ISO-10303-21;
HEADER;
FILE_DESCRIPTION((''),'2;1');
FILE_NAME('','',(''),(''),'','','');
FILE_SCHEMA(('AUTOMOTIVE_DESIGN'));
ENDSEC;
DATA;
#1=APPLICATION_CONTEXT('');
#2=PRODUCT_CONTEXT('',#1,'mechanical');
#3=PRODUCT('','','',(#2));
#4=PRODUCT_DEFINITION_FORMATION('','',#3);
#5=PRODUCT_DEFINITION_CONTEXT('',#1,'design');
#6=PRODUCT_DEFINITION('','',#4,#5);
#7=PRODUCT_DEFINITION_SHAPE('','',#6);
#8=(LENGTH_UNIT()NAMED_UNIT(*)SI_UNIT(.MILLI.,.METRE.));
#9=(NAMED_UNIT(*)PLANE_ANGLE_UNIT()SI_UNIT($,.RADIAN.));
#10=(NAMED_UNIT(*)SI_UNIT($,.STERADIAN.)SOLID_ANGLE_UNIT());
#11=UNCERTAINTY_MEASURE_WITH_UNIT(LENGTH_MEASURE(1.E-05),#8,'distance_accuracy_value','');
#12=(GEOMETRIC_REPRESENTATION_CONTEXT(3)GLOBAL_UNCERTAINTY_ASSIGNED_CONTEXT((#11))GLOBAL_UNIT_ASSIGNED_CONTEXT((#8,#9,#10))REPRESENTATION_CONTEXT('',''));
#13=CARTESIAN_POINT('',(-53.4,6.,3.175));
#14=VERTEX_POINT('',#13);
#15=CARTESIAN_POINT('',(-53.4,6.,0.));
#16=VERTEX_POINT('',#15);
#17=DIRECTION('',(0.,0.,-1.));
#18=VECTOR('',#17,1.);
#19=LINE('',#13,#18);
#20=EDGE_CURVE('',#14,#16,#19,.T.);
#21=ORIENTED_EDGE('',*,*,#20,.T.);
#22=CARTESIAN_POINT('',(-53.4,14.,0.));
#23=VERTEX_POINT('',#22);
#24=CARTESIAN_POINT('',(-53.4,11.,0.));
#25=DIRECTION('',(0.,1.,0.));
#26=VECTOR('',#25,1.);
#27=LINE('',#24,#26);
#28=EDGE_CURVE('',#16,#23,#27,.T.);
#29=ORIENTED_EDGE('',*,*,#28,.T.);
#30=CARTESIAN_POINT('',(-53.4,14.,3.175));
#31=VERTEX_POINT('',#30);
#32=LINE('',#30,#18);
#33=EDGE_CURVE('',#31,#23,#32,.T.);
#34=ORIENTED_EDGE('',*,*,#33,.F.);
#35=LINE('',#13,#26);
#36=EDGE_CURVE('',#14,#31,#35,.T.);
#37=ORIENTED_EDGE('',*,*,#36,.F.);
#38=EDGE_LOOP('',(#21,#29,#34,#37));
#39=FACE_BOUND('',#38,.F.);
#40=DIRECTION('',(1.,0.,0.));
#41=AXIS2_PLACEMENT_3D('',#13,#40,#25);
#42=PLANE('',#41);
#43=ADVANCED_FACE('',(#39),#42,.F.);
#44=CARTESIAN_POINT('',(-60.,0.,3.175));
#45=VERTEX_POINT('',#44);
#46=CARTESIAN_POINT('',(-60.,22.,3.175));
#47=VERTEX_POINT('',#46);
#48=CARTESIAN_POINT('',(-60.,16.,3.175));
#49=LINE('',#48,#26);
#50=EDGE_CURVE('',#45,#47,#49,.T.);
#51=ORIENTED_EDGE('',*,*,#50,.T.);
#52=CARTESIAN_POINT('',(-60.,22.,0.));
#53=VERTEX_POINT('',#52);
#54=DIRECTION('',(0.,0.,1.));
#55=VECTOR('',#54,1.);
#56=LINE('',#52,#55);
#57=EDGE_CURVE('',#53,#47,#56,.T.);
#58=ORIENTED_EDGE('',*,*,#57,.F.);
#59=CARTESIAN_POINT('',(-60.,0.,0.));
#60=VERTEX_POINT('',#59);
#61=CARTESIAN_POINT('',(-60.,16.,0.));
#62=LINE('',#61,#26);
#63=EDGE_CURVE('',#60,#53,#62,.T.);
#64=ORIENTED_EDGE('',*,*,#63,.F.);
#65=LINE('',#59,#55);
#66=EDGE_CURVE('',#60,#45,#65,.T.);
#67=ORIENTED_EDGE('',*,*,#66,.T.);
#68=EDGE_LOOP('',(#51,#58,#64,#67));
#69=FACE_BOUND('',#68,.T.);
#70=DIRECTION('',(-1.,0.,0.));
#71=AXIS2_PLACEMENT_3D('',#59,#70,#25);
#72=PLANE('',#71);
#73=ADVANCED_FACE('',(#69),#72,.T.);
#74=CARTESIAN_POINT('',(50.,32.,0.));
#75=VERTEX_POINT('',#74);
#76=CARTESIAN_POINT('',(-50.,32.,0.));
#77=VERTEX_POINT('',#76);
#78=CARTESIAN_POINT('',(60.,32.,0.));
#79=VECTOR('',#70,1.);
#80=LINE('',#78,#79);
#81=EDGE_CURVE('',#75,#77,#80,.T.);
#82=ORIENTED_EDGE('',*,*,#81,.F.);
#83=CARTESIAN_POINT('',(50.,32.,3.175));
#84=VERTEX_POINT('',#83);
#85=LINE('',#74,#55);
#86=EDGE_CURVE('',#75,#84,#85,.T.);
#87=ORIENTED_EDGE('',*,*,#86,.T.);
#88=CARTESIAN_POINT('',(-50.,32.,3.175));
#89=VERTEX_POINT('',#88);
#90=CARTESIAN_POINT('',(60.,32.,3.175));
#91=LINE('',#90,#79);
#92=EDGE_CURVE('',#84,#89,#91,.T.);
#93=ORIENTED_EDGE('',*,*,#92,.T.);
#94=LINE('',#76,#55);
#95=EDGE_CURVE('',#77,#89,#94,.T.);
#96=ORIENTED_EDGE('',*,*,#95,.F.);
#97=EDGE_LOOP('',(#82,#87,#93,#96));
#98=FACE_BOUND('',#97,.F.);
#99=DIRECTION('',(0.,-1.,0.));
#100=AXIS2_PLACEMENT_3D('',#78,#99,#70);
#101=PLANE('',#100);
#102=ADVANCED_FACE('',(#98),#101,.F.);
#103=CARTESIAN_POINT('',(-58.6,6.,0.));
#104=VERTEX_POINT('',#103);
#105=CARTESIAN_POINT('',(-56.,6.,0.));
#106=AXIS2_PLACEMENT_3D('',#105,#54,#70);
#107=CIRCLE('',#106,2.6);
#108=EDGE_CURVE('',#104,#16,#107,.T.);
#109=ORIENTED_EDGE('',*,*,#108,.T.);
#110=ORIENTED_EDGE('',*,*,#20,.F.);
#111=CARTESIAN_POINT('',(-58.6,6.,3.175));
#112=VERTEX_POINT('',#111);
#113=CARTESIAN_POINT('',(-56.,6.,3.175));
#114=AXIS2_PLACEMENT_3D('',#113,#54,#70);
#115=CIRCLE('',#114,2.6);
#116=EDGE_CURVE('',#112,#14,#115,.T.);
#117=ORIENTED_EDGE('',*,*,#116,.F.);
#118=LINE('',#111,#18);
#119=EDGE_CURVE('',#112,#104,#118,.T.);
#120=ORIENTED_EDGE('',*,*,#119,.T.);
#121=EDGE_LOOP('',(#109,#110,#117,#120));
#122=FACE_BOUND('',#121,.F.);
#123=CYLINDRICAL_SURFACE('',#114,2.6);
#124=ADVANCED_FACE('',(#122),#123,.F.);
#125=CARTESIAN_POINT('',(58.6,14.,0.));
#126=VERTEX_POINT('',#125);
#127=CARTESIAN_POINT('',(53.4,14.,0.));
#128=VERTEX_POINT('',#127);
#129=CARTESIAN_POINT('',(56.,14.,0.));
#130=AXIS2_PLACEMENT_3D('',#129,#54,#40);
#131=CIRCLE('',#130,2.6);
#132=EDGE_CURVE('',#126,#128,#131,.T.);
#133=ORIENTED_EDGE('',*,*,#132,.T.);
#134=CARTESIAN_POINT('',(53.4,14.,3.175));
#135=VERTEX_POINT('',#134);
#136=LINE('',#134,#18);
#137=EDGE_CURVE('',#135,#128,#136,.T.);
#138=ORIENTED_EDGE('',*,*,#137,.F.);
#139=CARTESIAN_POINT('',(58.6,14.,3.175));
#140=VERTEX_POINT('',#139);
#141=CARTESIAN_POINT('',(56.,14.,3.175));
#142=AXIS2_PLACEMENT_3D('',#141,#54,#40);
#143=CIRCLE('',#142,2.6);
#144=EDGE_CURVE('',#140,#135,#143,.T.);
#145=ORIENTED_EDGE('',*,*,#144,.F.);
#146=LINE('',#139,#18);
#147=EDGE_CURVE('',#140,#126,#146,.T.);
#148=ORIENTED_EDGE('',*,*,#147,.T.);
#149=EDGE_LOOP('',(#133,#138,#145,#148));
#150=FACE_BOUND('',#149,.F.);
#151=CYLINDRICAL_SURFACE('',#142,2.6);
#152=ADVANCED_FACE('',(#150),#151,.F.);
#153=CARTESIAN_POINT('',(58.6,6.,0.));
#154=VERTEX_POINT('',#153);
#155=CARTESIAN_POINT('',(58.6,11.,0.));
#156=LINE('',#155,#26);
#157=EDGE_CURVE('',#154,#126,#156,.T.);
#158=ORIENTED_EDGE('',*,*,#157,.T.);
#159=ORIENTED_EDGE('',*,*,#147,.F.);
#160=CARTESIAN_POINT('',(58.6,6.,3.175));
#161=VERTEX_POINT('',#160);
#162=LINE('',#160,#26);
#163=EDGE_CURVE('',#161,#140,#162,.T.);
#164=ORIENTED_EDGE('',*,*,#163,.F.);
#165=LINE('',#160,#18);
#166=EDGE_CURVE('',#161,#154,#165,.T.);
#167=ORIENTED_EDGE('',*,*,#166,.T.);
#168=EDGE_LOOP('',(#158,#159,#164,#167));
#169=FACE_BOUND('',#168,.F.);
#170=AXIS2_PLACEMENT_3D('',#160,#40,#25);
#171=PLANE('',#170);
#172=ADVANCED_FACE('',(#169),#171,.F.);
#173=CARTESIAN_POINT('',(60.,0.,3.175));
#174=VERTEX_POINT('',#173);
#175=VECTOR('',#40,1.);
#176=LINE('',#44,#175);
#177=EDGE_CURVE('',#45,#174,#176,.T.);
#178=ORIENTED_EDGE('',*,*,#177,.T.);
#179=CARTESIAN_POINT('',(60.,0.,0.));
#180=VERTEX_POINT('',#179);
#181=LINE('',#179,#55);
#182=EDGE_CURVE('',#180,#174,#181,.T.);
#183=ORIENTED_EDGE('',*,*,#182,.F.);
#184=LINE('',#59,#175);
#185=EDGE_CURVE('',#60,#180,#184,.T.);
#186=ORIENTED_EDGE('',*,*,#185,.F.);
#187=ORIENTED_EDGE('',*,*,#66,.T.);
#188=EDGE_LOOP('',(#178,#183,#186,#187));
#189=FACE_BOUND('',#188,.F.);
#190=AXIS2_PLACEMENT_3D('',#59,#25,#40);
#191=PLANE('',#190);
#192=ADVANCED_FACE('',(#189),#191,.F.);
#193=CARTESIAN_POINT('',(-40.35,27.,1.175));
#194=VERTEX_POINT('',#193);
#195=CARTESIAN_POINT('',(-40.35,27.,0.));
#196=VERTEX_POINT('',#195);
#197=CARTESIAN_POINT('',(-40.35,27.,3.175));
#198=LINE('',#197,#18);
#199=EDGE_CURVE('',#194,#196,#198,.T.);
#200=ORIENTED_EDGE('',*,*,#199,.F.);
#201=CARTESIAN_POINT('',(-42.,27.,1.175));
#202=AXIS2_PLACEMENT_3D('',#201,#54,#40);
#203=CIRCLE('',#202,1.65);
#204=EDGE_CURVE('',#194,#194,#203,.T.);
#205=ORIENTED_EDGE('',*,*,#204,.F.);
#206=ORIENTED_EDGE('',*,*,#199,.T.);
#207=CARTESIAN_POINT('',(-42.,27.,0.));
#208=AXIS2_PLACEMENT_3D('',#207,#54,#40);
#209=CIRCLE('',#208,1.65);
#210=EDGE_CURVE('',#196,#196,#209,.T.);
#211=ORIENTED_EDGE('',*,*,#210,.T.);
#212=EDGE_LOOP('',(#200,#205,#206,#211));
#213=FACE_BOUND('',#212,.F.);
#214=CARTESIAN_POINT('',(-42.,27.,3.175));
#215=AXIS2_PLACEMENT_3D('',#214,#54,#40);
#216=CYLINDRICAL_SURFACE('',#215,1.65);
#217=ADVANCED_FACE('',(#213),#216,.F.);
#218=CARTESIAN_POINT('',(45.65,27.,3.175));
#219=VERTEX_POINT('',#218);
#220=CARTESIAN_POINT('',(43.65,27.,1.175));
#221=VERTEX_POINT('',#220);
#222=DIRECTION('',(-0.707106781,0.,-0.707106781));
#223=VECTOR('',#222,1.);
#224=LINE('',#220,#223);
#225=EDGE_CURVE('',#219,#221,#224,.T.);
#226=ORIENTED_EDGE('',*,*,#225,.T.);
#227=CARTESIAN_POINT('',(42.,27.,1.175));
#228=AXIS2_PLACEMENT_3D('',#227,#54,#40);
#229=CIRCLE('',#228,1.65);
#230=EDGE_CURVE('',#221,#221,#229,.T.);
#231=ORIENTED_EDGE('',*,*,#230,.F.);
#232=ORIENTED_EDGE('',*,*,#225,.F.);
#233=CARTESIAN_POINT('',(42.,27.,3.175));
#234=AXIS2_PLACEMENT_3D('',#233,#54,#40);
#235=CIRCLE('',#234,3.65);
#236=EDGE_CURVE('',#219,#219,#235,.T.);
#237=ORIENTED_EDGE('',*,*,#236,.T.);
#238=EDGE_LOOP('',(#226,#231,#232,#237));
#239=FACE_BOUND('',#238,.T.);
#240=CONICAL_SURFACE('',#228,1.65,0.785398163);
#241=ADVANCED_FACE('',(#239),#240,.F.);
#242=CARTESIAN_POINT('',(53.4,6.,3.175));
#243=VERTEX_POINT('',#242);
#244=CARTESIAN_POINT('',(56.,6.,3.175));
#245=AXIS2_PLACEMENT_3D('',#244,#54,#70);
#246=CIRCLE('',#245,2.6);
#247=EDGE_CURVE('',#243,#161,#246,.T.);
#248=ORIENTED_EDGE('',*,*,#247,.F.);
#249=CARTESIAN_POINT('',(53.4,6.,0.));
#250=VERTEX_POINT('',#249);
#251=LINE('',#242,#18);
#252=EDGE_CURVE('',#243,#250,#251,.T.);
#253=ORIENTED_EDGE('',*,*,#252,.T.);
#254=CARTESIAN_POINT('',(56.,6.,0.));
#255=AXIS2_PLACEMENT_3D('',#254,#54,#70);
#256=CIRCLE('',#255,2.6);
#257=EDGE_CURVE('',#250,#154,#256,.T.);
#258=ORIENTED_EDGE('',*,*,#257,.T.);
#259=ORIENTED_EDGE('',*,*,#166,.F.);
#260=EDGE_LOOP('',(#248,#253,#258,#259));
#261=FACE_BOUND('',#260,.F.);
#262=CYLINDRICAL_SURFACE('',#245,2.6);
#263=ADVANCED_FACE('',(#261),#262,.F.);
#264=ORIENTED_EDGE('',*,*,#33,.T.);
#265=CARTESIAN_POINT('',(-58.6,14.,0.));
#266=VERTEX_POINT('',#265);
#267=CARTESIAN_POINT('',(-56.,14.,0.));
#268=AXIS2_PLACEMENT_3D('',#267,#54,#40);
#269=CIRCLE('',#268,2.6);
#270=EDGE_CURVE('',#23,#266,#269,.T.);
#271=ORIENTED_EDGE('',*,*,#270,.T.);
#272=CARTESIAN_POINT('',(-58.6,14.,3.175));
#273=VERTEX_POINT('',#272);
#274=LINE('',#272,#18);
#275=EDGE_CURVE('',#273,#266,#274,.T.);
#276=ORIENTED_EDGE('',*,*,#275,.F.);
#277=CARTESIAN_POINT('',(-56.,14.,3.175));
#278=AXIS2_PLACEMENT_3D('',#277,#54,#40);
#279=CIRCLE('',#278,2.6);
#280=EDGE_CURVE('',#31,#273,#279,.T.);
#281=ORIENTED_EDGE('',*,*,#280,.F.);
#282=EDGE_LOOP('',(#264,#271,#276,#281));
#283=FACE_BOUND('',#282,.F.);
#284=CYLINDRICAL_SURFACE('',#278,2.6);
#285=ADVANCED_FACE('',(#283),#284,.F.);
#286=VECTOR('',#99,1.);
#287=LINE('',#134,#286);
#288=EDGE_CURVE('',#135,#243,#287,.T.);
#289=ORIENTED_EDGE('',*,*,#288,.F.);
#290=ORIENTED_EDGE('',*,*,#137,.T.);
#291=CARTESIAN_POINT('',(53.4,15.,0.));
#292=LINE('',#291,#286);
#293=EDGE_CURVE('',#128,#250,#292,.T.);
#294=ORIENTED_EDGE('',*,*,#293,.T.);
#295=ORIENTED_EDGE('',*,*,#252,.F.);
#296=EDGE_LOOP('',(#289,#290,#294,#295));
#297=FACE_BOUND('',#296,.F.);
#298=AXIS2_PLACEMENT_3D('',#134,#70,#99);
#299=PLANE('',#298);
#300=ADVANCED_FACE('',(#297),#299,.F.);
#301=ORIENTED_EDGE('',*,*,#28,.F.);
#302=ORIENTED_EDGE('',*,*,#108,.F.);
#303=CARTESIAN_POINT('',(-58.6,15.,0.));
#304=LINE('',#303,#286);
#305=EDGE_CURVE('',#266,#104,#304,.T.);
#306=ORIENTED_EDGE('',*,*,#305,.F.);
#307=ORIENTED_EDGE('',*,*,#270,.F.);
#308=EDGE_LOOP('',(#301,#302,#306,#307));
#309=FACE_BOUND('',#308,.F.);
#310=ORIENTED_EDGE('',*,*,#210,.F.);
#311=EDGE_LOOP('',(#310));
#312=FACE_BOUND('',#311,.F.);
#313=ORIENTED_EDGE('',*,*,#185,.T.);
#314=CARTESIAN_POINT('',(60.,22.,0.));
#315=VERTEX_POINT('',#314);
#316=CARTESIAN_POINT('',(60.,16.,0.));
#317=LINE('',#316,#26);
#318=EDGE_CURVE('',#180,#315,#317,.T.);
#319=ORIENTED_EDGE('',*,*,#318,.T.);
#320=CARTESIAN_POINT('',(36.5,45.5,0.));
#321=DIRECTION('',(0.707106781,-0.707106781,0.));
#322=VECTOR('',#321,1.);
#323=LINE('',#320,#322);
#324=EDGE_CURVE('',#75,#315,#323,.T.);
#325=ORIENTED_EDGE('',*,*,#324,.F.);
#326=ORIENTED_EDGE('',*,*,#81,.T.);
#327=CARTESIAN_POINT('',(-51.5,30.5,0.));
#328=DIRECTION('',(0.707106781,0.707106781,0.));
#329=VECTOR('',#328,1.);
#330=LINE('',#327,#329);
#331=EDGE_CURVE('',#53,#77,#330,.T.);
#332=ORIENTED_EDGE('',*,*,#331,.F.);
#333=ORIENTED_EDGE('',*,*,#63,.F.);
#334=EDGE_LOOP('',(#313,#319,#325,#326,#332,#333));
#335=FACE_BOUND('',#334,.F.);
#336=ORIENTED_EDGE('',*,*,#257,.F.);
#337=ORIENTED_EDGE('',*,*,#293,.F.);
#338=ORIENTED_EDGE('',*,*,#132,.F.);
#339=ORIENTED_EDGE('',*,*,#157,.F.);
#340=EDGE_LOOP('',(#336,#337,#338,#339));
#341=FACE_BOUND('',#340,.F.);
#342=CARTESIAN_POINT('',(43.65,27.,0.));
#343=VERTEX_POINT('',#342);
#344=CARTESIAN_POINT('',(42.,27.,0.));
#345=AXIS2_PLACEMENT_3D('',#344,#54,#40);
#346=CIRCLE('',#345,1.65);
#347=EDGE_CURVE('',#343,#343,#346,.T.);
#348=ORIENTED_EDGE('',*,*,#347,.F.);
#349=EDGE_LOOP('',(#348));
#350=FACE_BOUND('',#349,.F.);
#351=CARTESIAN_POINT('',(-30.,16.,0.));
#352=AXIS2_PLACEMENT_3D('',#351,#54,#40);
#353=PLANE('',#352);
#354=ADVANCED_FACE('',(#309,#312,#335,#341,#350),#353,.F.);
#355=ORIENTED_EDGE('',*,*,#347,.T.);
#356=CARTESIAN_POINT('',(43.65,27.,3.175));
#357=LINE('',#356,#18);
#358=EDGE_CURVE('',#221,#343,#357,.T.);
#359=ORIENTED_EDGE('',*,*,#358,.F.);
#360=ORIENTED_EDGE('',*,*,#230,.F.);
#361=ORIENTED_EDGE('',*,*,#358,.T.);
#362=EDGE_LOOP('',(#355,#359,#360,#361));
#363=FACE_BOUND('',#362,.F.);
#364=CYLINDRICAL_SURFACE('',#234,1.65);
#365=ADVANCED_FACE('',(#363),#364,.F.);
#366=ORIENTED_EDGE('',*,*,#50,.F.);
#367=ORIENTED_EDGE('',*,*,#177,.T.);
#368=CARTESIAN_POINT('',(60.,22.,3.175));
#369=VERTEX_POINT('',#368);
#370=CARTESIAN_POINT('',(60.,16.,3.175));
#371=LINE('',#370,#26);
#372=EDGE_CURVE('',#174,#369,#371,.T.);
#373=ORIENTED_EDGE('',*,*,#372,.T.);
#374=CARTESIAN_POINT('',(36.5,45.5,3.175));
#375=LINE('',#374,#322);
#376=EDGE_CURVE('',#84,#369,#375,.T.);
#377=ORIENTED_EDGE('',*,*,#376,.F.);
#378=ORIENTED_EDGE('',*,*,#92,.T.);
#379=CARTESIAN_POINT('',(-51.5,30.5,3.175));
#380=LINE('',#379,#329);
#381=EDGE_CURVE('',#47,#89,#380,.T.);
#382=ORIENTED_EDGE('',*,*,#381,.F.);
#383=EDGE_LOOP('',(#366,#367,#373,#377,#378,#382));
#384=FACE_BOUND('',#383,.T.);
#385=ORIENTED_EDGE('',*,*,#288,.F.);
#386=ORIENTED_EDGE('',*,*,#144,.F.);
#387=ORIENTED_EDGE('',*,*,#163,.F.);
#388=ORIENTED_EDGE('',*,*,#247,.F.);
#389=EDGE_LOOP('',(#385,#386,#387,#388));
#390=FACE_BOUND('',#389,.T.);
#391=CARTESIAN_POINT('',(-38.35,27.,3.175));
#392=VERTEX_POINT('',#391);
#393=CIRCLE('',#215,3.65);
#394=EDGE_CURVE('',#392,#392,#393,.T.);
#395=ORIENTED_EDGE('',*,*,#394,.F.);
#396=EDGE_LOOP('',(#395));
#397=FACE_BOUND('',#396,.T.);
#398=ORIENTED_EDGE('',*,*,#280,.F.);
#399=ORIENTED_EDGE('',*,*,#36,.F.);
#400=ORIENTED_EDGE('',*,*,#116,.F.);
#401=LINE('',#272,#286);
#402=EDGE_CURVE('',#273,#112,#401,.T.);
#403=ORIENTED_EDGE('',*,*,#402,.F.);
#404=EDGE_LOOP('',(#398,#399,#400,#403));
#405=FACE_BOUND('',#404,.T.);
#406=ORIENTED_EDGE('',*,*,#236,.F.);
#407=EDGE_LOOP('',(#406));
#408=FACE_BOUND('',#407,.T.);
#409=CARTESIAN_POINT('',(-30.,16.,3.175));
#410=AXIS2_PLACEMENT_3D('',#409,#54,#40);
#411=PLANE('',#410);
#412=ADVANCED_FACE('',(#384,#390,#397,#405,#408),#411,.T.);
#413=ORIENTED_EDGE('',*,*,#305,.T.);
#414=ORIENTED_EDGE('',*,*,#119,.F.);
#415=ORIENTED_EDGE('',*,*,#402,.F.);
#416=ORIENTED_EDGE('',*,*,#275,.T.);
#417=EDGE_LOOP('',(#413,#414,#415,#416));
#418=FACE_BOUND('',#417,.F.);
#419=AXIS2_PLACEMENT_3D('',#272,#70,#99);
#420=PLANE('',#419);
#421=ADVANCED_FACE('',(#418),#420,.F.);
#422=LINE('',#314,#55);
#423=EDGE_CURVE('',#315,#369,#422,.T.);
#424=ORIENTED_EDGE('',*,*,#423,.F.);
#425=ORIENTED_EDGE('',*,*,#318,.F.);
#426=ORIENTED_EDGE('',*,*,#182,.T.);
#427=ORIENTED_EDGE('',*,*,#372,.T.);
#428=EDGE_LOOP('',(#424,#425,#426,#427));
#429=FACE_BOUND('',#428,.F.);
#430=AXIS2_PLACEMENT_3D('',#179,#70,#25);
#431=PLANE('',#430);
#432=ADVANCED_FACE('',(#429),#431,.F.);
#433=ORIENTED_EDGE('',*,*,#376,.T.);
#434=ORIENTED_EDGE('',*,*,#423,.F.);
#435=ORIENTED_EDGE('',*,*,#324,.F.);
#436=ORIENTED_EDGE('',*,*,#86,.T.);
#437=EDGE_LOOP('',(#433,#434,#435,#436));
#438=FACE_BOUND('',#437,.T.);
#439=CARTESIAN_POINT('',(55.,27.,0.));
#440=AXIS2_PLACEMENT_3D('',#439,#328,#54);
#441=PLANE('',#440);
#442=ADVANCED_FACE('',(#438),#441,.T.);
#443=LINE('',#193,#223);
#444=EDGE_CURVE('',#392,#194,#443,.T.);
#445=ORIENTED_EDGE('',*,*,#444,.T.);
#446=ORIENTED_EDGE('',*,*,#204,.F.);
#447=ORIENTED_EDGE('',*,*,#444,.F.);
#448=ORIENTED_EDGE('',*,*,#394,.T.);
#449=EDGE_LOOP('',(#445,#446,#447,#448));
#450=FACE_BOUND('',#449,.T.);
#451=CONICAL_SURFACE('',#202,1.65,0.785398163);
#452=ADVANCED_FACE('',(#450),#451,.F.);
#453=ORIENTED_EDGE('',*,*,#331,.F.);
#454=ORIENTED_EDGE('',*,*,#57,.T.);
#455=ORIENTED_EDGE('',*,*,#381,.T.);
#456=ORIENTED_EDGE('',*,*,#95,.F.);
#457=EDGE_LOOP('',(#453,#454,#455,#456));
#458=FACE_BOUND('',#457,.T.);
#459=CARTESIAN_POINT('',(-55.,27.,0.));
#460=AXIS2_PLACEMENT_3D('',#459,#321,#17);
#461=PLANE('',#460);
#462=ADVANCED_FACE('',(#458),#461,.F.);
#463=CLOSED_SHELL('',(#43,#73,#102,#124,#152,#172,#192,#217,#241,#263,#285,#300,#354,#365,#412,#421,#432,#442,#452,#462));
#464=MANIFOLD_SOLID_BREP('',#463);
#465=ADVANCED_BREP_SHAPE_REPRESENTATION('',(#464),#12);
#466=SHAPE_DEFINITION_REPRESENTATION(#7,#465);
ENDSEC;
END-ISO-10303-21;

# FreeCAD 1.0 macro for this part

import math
import FreeCAD as App
import Part
import Sketcher
from FreeCAD import Vector
Q = App.Units.Quantity


def edges_at(feature, points):
    """Names of the edges that pass closest to the given points."""
    edges = feature.Shape.Edges
    near = lambda p: min(range(len(edges)), key=lambda i: edges[i].distToShape(Part.Vertex(*p))[0])
    return sorted({f"Edge{near(p) + 1}" for p in points})


def add_polygon(sketch, points):
    """Adds a closed chain of lines whose ends are joined by coincident constraints."""
    first, n = sketch.GeometryCount, len(points)
    for a, b in zip(points, points[1:] + points[:1]):
        sketch.addGeometry(Part.LineSegment(App.Vector(*a, 0), App.Vector(*b, 0)), False)
    for i in range(n):
        sketch.addConstraint(Sketcher.Constraint("Coincident", first + i, 2, first + (i + 1) % n, 1))

doc = App.newDocument("Part")
body = doc.addObject("PartDesign::Body", "Body")

# Sketch on XY plane
sketch1 = doc.addObject("Sketcher::SketchObject", "Sketch")
body.addObject(sketch1)
sketch1.AttachmentSupport = (doc.XY_Plane, [""])
sketch1.MapMode = "FlatFace"
add_polygon(sketch1, [(-60, 32), (-60, 0), (60, 0), (60, 32)])  # lines 0-3
sketch1.addConstraint([
    Sketcher.Constraint("Vertical", 0),
    Sketcher.Constraint("Horizontal", 1),
    Sketcher.Constraint("Vertical", 2),
    Sketcher.Constraint("Horizontal", 3),
    Sketcher.Constraint("Symmetric", 0, 2, 1, 2, -1, 1),
    Sketcher.Constraint("DistanceX", 1, 1, 1, 2, Q("120 mm")),
    Sketcher.Constraint("DistanceY", 0, 2, 0, 1, Q("32 mm")),
])
pad1 = doc.addObject("PartDesign::Pad", "Pad")
body.addObject(pad1)
pad1.Profile = sketch1
pad1.Length = 3.175

# Sketch on XY plane
sketch2 = doc.addObject("Sketcher::SketchObject", "Sketch001")
body.addObject(sketch2)
sketch2.AttachmentSupport = (doc.XY_Plane, [""])
sketch2.MapMode = "FlatFace"
sketch2.AttachmentOffset = App.Placement(Vector(0, 0, 3.175), App.Rotation())
sketch2.addGeometry([
    Part.ArcOfCircle(Part.Circle(Vector(-56, 14, 0), Vector(0, 0, 1), 2.6), math.radians(0), math.radians(180)),  # 0
    Part.LineSegment(Vector(-58.6, 14, 0), Vector(-58.6, 6, 0)),  # 1
    Part.ArcOfCircle(Part.Circle(Vector(-56, 6, 0), Vector(0, 0, 1), 2.6), math.radians(180), math.radians(360)),  # 2
    Part.LineSegment(Vector(-53.4, 6, 0), Vector(-53.4, 14, 0)),  # 3
    Part.Circle(Vector(-42, 27, 0), Vector(0, 0, 1), 1.6),  # 4
    Part.Circle(Vector(42, 27, 0), Vector(0, 0, 1), 1.6),  # 5
    Part.ArcOfCircle(Part.Circle(Vector(56, 14, 0), Vector(0, 0, 1), 2.6), math.radians(0), math.radians(180)),  # 6
    Part.LineSegment(Vector(53.4, 14, 0), Vector(53.4, 6, 0)),  # 7
    Part.ArcOfCircle(Part.Circle(Vector(56, 6, 0), Vector(0, 0, 1), 2.6), math.radians(180), math.radians(360)),  # 8
    Part.LineSegment(Vector(58.6, 6, 0), Vector(58.6, 14, 0)),  # 9
], False)
sketch2.addConstraint([
    Sketcher.Constraint("Tangent", 0, 2, 1, 1),
    Sketcher.Constraint("Tangent", 1, 2, 2, 1),
    Sketcher.Constraint("Tangent", 2, 2, 3, 1),
    Sketcher.Constraint("Tangent", 3, 2, 0, 1),
    Sketcher.Constraint("Tangent", 6, 2, 7, 1),
    Sketcher.Constraint("Tangent", 7, 2, 8, 1),
    Sketcher.Constraint("Tangent", 8, 2, 9, 1),
    Sketcher.Constraint("Tangent", 9, 2, 6, 1),
    Sketcher.Constraint("Vertical", 1),
    Sketcher.Constraint("Vertical", 3),
    Sketcher.Constraint("Vertical", 7),
    Sketcher.Constraint("Vertical", 9),
    Sketcher.Constraint("Equal", 4, 5),
    Sketcher.Constraint("Equal", 2, 6),
    Sketcher.Constraint("Symmetric", 4, 3, 5, 3, -2),
    Sketcher.Constraint("Symmetric", 0, 3, 6, 3, -2),
    Sketcher.Constraint("Horizontal", 2, 3, 8, 3),
    Sketcher.Constraint("Diameter", 4, Q("3.3 mm")),
    Sketcher.Constraint("Radius", 0, Q("2.6 mm")),
    Sketcher.Constraint("DistanceY", 1, 2, 1, 1, Q("8 mm")),
    Sketcher.Constraint("DistanceX", 0, 3, -1, 1, Q("56 mm")),
    Sketcher.Constraint("DistanceY", -1, 1, 0, 3, Q("14 mm")),
    Sketcher.Constraint("DistanceX", 4, 3, -1, 1, Q("42 mm")),
    Sketcher.Constraint("DistanceY", -1, 1, 4, 3, Q("27 mm")),
])
pocket1 = doc.addObject("PartDesign::Pocket", "Pocket")
body.addObject(pocket1)
pocket1.Profile = sketch2
pocket1.Type = "ThroughAll"
doc.recompute()

chamfer = doc.addObject("PartDesign::Chamfer", "Chamfer")
body.addObject(chamfer)
chamfer.Base = (pocket1, edges_at(pocket1, [(-43.65, 27, 3.175), (40.35, 27, 3.175)]))
chamfer.Size = 2
doc.recompute()

chamfer2 = doc.addObject("PartDesign::Chamfer", "Chamfer001")
body.addObject(chamfer2)
chamfer2.Base = (chamfer, edges_at(chamfer, [(-60, 32, 1.587), (60, 32, 1.587)]))
chamfer2.Size = 10

doc.recompute()
